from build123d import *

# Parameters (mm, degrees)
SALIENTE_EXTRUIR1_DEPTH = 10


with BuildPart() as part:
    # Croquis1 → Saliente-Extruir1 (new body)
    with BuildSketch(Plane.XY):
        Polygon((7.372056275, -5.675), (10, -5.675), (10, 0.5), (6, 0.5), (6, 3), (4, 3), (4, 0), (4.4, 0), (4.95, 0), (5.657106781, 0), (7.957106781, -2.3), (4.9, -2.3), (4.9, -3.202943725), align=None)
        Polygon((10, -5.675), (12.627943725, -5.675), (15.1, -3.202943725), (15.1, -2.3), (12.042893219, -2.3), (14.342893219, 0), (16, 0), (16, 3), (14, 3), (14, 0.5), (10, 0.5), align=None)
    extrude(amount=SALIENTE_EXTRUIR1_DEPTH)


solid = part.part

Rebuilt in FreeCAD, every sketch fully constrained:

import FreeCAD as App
import Part
import Sketcher

V = App.Vector

doc = App.newDocument("Part")
body = doc.addObject("PartDesign::Body", "Body")

# Sketch on XY plane
sketch1 = body.newObject("Sketcher::SketchObject", "Sketch")
sketch1.AttachmentSupport = (doc.getObject("XY_Plane"), [""])
sketch1.MapMode = "FlatFace"
sketch1.addGeometry(Part.LineSegment(V(7.4, -5.7, 0), V(12.6, -5.7, 0)), False)
sketch1.addGeometry(Part.LineSegment(V(12.6, -5.7, 0), V(15.1, -3.2, 0)), False)
sketch1.addGeometry(Part.LineSegment(V(15.1, -3.2, 0), V(15.1, -2.3, 0)), False)
sketch1.addGeometry(Part.LineSegment(V(15.1, -2.3, 0), V(12, -2.3, 0)), False)
sketch1.addGeometry(Part.LineSegment(V(12, -2.3, 0), V(14.3, 0, 0)), False)
sketch1.addGeometry(Part.LineSegment(V(14.3, 0, 0), V(16, 0, 0)), False)
sketch1.addGeometry(Part.LineSegment(V(16, 0, 0), V(16, 3, 0)), False)
sketch1.addGeometry(Part.LineSegment(V(16, 3, 0), V(14, 3, 0)), False)
sketch1.addGeometry(Part.LineSegment(V(14, 3, 0), V(14, 0.5, 0)), False)
sketch1.addGeometry(Part.LineSegment(V(14, 0.5, 0), V(6, 0.5, 0)), False)
sketch1.addGeometry(Part.LineSegment(V(6, 0.5, 0), V(6, 3, 0)), False)
sketch1.addGeometry(Part.LineSegment(V(6, 3, 0), V(4, 3, 0)), False)
sketch1.addGeometry(Part.LineSegment(V(4, 3, 0), V(4, 0, 0)), False)
sketch1.addGeometry(Part.LineSegment(V(4, 0, 0), V(5.7, 0, 0)), False)
sketch1.addGeometry(Part.LineSegment(V(5.7, 0, 0), V(8, -2.3, 0)), False)
sketch1.addGeometry(Part.LineSegment(V(8, -2.3, 0), V(4.9, -2.3, 0)), False)
sketch1.addGeometry(Part.LineSegment(V(4.9, -2.3, 0), V(4.9, -3.2, 0)), False)
sketch1.addGeometry(Part.LineSegment(V(4.9, -3.2, 0), V(7.4, -5.7, 0)), False)
sketch1.addConstraint(Sketcher.Constraint("Coincident", 0, 2, 1, 1))
sketch1.addConstraint(Sketcher.Constraint("Coincident", 1, 2, 2, 1))
sketch1.addConstraint(Sketcher.Constraint("Coincident", 2, 2, 3, 1))
sketch1.addConstraint(Sketcher.Constraint("Coincident", 3, 2, 4, 1))
sketch1.addConstraint(Sketcher.Constraint("Coincident", 4, 2, 5, 1))
sketch1.addConstraint(Sketcher.Constraint("Coincident", 5, 2, 6, 1))
sketch1.addConstraint(Sketcher.Constraint("Coincident", 6, 2, 7, 1))
sketch1.addConstraint(Sketcher.Constraint("Coincident", 7, 2, 8, 1))
sketch1.addConstraint(Sketcher.Constraint("Coincident", 8, 2, 9, 1))
sketch1.addConstraint(Sketcher.Constraint("Coincident", 9, 2, 10, 1))
sketch1.addConstraint(Sketcher.Constraint("Coincident", 10, 2, 11, 1))
sketch1.addConstraint(Sketcher.Constraint("Coincident", 11, 2, 12, 1))
sketch1.addConstraint(Sketcher.Constraint("Coincident", 12, 2, 13, 1))
sketch1.addConstraint(Sketcher.Constraint("Coincident", 13, 2, 14, 1))
sketch1.addConstraint(Sketcher.Constraint("Coincident", 14, 2, 15, 1))
sketch1.addConstraint(Sketcher.Constraint("Coincident", 15, 2, 16, 1))
sketch1.addConstraint(Sketcher.Constraint("Coincident", 16, 2, 17, 1))
sketch1.addConstraint(Sketcher.Constraint("Coincident", 17, 2, 0, 1))
sketch1.addConstraint(Sketcher.Constraint("Horizontal", 0))
sketch1.addConstraint(Sketcher.Constraint("Vertical", 2))
sketch1.addConstraint(Sketcher.Constraint("Horizontal", 3))
sketch1.addConstraint(Sketcher.Constraint("Horizontal", 5))
sketch1.addConstraint(Sketcher.Constraint("Vertical", 6))
sketch1.addConstraint(Sketcher.Constraint("Horizontal", 7))
sketch1.addConstraint(Sketcher.Constraint("Vertical", 8))
sketch1.addConstraint(Sketcher.Constraint("Horizontal", 9))
sketch1.addConstraint(Sketcher.Constraint("Vertical", 10))
sketch1.addConstraint(Sketcher.Constraint("Horizontal", 11))
sketch1.addConstraint(Sketcher.Constraint("Vertical", 12))
sketch1.addConstraint(Sketcher.Constraint("Horizontal", 13))
sketch1.addConstraint(Sketcher.Constraint("Horizontal", 15))
sketch1.addConstraint(Sketcher.Constraint("Vertical", 16))
sketch1.addConstraint(Sketcher.Constraint("PointOnObject", 4, 2, -1))
sketch1.addConstraint(Sketcher.Constraint("PointOnObject", 12, 2, -1))
sketch1.addConstraint(Sketcher.Constraint("Parallel", 1, 4))
sketch1.addConstraint(Sketcher.Constraint("Perpendicular", 4, 14))
sketch1.addConstraint(Sketcher.Constraint("Parallel", 14, 17))
sketch1.addConstraint(Sketcher.Constraint("Horizontal", 7, 2, 10, 2))
sketch1.addConstraint(Sketcher.Constraint("Horizontal", 3, 2, 14, 2))
sketch1.addConstraint(Sketcher.Constraint("Horizontal", 1, 2, 16, 2))
sketch1.addConstraint(Sketcher.Constraint("Equal", 7, 11))
sketch1.addConstraint(Sketcher.Constraint("Equal", 5, 13))
sketch1.addConstraint(Sketcher.Constraint("Equal", 3, 15))
sketch1.addConstraint(Sketcher.Constraint("Equal", 4, 14))
sketch1.addConstraint(Sketcher.Constraint("DistanceX", 7, 2, 7, 1, 2.0))
sketch1.addConstraint(Sketcher.Constraint("DistanceX", 9, 2, 9, 1, 8.0))
sketch1.addConstraint(Sketcher.Constraint("DistanceY", 6, 1, 6, 2, 3.0))
sketch1.addConstraint(Sketcher.Constraint("DistanceY", 8, 2, 8, 1, 2.5))
sketch1.addConstraint(Sketcher.Constraint("DistanceX", -1, 1, 5, 2, 16.0))
sketch1.addConstraint(Sketcher.Constraint("DistanceX", -1, 1, 1, 2, 15.1))
sketch1.addConstraint(Sketcher.Constraint("DistanceY", 2, 2, -1, 1, 2.3))
sketch1.addConstraint(Sketcher.Constraint("DistanceY", 0, 2, -1, 1, 5.675))
sketch1.addConstraint(Sketcher.Constraint("DistanceX", 0, 1, 0, 2, 5.255887))
sketch1.addConstraint(Sketcher.Constraint("DistanceX", 3, 2, 3, 1, 3.057107))
pad1 = body.newObject("PartDesign::Pad", "Pad")
pad1.Profile = sketch1
pad1.Length = 10

doc.recompute()
